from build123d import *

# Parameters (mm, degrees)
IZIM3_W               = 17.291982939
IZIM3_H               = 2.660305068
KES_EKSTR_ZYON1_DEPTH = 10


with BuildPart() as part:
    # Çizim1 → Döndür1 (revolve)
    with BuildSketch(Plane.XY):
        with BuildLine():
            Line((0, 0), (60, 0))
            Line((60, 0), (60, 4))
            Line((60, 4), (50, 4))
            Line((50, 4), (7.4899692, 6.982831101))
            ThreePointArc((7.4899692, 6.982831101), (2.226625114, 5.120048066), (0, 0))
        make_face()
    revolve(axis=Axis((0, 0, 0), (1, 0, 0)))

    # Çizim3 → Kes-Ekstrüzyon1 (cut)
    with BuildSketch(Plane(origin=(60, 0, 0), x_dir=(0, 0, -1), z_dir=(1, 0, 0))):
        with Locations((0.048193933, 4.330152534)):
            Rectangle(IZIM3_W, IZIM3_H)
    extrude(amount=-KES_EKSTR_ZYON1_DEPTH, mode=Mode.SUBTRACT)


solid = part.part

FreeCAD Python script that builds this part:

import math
import FreeCAD as App
import Part
import Sketcher

V = App.Vector
Q = App.Units.Quantity

doc = App.newDocument("Part")
body = doc.addObject("PartDesign::Body", "Body")

# Sketch on XY plane
sketch1 = doc.addObject("Sketcher::SketchObject", "Sketch")
body.addObject(sketch1)
sketch1.AttachmentSupport = (doc.XY_Plane, [""])
sketch1.MapMode = "FlatFace"
sketch1.addGeometry([
    Part.LineSegment(V(0, 0, 0), V(60, 0, 0)),  # 0
    Part.LineSegment(V(60, 0, 0), V(60, 4, 0)),  # 1
    Part.LineSegment(V(60, 4, 0), V(50, 4, 0)),  # 2
    Part.LineSegment(V(50, 4, 0), V(7.5, 7, 0)),  # 3
    Part.ArcOfCircle(Part.Circle(V(7, 0, 0), V(0, 0, 1), 7), math.radians(86), math.radians(180)),  # 4
], False)
sketch1.addConstraint([
    Sketcher.Constraint("Coincident", 0, 2, 1, 1),
    Sketcher.Constraint("Coincident", 1, 2, 2, 1),
    Sketcher.Constraint("Coincident", 2, 2, 3, 1),
    Sketcher.Constraint("Tangent", 3, 2, 4, 1),
    Sketcher.Constraint("Coincident", 4, 2, 0, 1),
    Sketcher.Constraint("Horizontal", 0),
    Sketcher.Constraint("Vertical", 1),
    Sketcher.Constraint("Horizontal", 2),
    Sketcher.Constraint("Coincident", 4, 2, -1, 1),
    Sketcher.Constraint("PointOnObject", 4, 3, -1),
    Sketcher.Constraint("Radius", 4, Q("7 mm")),
    Sketcher.Constraint("DistanceX", 0, 1, 0, 2, Q("60 mm")),
    Sketcher.Constraint("DistanceX", 2, 2, 2, 1, Q("10 mm")),
    Sketcher.Constraint("DistanceY", 1, 1, 1, 2, Q("4 mm")),
])
revolution = doc.addObject("PartDesign::Revolution", "Revolution")
body.addObject(revolution)
revolution.Profile = sketch1
revolution.ReferenceAxis = (sketch1, ["H_Axis"])
revolution.Angle = 360

# Sketch on YZ plane
sketch2 = doc.addObject("Sketcher::SketchObject", "Sketch001")
body.addObject(sketch2)
sketch2.AttachmentSupport = (doc.YZ_Plane, [""])
sketch2.MapMode = "FlatFace"
sketch2.AttachmentOffset = App.Placement(V(0, 0, 60), App.Rotation())
sketch2.addGeometry([
    Part.LineSegment(V(5.7, 8.6, 0), V(3, 8.6, 0)),
    Part.LineSegment(V(3, 8.6, 0), V(3, -8.7, 0)),
    Part.LineSegment(V(3, -8.7, 0), V(5.7, -8.7, 0)),
    Part.LineSegment(V(5.7, -8.7, 0), V(5.7, 8.6, 0)),
], False)
sketch2.addConstraint([
    Sketcher.Constraint("Coincident", 0, 2, 1, 1),
    Sketcher.Constraint("Coincident", 1, 2, 2, 1),
    Sketcher.Constraint("Coincident", 2, 2, 3, 1),
    Sketcher.Constraint("Coincident", 3, 2, 0, 1),
    Sketcher.Constraint("Horizontal", 0),
    Sketcher.Constraint("Vertical", 1),
    Sketcher.Constraint("Horizontal", 2),
    Sketcher.Constraint("Vertical", 3),
    Sketcher.Constraint("DistanceX", -1, 1, 0, 2, Q("3 mm")),
    Sketcher.Constraint("DistanceX", 0, 2, 0, 1, Q("2.660305 mm")),
    Sketcher.Constraint("DistanceY", 1, 2, 1, 1, Q("17.291983 mm")),
    Sketcher.Constraint("DistanceY", -1, 1, 0, 2, Q("8.597798 mm")),
])
pocket1 = doc.addObject("PartDesign::Pocket", "Pocket")
body.addObject(pocket1)
pocket1.Profile = sketch2
pocket1.Length = 10

doc.recompute()
